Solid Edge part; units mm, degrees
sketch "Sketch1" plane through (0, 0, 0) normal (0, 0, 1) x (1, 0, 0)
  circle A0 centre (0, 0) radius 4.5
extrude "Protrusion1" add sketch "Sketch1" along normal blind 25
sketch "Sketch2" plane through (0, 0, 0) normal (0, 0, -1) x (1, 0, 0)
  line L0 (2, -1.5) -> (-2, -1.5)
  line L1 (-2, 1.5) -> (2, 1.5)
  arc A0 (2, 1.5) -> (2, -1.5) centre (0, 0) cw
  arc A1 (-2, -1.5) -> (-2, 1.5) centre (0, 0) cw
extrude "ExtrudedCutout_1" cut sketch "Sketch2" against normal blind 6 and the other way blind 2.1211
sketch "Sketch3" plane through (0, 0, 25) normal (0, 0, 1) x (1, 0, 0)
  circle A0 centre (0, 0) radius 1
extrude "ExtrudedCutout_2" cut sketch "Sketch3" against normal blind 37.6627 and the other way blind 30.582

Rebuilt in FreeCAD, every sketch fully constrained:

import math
import FreeCAD as App
import Part
import Sketcher
Q = App.Units.Quantity

doc = App.newDocument("Part")
body = doc.addObject("PartDesign::Body", "Body")

# Sketch on XY plane
sketch1 = body.newObject("Sketcher::SketchObject", "Sketch")
sketch1.AttachmentSupport = (doc.getObject("XY_Plane"), [""])
sketch1.MapMode = "FlatFace"
sketch1.addGeometry(Part.Circle(App.Vector(0, 0, 0), App.Vector(0, 0, 1), 4.5), False)
sketch1.addConstraint(Sketcher.Constraint("Coincident", 0, 3, -1, 1))
sketch1.addConstraint(Sketcher.Constraint("Diameter", 0, Q("9 mm")))
pad1 = body.newObject("PartDesign::Pad", "Pad")
pad1.Profile = sketch1
pad1.Length = 25

# Sketch on XY plane
sketch2 = body.newObject("Sketcher::SketchObject", "Sketch001")
sketch2.AttachmentSupport = (doc.getObject("XY_Plane"), [""])
sketch2.MapMode = "FlatFace"
sketch2.addGeometry(Part.LineSegment(App.Vector(-2, 1.5, 0), App.Vector(2, 1.5, 0)), False)
sketch2.addGeometry(Part.ArcOfCircle(Part.Circle(App.Vector(0, 0, 0), App.Vector(0, 0, 1), 2.5), math.radians(-37), math.radians(37)), False)
sketch2.addGeometry(Part.LineSegment(App.Vector(2, -1.5, 0), App.Vector(-2, -1.5, 0)), False)
sketch2.addGeometry(Part.ArcOfCircle(Part.Circle(App.Vector(0, 0, 0), App.Vector(0, 0, 1), 2.5), math.radians(143), math.radians(217)), False)
sketch2.addConstraint(Sketcher.Constraint("Coincident", 0, 2, 1, 2))
sketch2.addConstraint(Sketcher.Constraint("Coincident", 1, 1, 2, 1))
sketch2.addConstraint(Sketcher.Constraint("Coincident", 2, 2, 3, 2))
sketch2.addConstraint(Sketcher.Constraint("Coincident", 3, 1, 0, 1))
sketch2.addConstraint(Sketcher.Constraint("Horizontal", 0))
sketch2.addConstraint(Sketcher.Constraint("Horizontal", 2))
sketch2.addConstraint(Sketcher.Constraint("Coincident", 1, 3, -1, 1))
sketch2.addConstraint(Sketcher.Constraint("Coincident", 3, 3, -1, 1))
sketch2.addConstraint(Sketcher.Constraint("Equal", 1, 3))
sketch2.addConstraint(Sketcher.Constraint("Vertical", 0, 2, 1, 1))
sketch2.addConstraint(Sketcher.Constraint("Radius", 1, Q("2.5 mm")))
sketch2.addConstraint(Sketcher.Constraint("DistanceX", 0, 1, 0, 2, Q("4 mm")))
pocket1 = body.newObject("PartDesign::Pocket", "Pocket")
pocket1.Profile = sketch2
pocket1.Type = "TwoLengths"
pocket1.Length = 6
pocket1.Length2 = 2.1211
pocket1.Reversed = True

# Sketch on XY plane
sketch3 = body.newObject("Sketcher::SketchObject", "Sketch002")
sketch3.AttachmentSupport = (doc.getObject("XY_Plane"), [""])
sketch3.MapMode = "FlatFace"
sketch3.AttachmentOffset = App.Placement(App.Vector(0, 0, 25), App.Rotation())
sketch3.addGeometry(Part.Circle(App.Vector(0, 0, 0), App.Vector(0, 0, 1), 1), False)
sketch3.addConstraint(Sketcher.Constraint("Coincident", 0, 3, -1, 1))
sketch3.addConstraint(Sketcher.Constraint("Diameter", 0, Q("2 mm")))
pocket2 = body.newObject("PartDesign::Pocket", "Pocket001")
pocket2.Profile = sketch3
pocket2.Type = "ThroughAll"
pocket2.Midplane = True

doc.recompute()
